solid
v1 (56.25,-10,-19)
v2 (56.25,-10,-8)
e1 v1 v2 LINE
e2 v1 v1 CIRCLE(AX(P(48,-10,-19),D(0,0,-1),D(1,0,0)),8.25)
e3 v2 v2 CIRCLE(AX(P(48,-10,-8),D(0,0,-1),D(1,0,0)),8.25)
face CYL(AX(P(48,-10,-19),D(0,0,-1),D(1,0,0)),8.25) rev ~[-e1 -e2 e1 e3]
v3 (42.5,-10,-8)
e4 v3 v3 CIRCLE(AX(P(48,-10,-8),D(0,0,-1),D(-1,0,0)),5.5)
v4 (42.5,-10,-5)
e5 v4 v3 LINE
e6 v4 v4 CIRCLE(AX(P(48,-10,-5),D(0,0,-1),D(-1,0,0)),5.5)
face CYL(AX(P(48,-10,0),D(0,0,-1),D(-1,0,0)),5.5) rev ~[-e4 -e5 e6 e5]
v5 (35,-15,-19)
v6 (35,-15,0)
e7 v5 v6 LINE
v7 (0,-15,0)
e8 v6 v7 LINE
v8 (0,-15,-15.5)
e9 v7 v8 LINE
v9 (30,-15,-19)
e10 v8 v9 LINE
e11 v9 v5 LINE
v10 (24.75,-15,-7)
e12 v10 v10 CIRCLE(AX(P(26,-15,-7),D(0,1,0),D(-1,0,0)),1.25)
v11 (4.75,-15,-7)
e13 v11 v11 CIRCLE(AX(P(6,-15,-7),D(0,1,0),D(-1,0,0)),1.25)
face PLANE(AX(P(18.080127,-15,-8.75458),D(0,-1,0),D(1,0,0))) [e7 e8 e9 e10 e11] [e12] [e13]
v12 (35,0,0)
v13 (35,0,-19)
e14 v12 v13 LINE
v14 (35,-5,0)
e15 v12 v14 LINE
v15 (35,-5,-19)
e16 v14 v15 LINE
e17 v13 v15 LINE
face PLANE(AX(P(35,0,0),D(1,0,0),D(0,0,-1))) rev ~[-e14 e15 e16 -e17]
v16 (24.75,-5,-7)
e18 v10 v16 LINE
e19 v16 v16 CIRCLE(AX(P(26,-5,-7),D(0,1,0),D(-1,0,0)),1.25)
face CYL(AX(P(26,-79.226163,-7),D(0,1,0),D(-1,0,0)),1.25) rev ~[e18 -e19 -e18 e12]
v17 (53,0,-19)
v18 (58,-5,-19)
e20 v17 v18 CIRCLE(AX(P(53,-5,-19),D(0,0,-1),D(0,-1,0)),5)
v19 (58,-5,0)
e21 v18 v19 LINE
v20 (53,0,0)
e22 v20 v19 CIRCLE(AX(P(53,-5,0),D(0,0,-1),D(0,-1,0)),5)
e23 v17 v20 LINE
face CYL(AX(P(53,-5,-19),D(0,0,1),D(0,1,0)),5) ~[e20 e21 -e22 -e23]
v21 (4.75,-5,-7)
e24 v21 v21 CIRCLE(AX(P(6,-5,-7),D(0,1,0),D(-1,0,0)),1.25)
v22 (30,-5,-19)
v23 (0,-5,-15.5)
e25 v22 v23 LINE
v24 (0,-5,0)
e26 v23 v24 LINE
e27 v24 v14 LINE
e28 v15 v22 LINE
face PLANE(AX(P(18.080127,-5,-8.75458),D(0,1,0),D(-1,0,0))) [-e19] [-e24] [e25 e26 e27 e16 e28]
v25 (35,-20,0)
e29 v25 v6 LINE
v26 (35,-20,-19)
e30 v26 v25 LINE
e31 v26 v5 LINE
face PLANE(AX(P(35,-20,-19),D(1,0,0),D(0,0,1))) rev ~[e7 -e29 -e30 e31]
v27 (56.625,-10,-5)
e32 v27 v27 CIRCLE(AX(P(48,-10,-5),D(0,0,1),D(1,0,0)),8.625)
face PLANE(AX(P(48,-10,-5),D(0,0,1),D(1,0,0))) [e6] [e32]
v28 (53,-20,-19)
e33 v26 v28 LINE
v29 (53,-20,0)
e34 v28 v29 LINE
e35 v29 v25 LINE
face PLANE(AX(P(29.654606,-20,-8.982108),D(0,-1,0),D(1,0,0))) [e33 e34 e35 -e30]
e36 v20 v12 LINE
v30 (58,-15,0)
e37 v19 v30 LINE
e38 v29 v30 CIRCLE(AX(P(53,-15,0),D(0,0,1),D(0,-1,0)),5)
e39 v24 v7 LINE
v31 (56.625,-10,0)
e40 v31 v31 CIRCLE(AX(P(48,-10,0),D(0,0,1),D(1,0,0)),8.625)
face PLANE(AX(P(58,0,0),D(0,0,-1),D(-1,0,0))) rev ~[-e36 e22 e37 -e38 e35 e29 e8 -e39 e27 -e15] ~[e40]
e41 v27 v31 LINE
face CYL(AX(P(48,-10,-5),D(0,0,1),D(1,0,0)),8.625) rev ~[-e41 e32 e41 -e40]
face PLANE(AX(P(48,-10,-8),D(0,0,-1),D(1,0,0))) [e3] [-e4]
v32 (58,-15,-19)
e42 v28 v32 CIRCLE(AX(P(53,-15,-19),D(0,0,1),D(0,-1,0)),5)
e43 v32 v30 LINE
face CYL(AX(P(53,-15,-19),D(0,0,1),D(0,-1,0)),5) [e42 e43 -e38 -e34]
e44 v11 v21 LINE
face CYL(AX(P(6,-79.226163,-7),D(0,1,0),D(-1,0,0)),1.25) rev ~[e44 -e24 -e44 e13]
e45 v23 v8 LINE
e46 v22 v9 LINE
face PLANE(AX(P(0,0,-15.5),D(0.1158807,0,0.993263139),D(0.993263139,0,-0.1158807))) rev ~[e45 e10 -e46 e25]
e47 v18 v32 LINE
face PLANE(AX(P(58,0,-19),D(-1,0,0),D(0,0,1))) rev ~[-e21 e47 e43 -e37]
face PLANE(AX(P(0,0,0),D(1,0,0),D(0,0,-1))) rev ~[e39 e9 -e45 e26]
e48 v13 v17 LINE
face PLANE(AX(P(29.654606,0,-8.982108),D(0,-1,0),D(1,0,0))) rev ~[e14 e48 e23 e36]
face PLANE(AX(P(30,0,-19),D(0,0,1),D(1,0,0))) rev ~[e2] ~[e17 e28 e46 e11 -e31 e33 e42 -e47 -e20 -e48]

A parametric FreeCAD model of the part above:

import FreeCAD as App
import Part
import Sketcher

V = App.Vector


def edges_at(feature, points):
    """Names of the edges that pass closest to the given points."""
    edges = feature.Shape.Edges
    near = lambda p: min(range(len(edges)), key=lambda i: edges[i].distToShape(Part.Vertex(*p))[0])
    return sorted({f"Edge{near(p) + 1}" for p in points})


def add_polygon(sketch, points):
    """Adds a closed chain of lines whose ends are joined by coincident constraints."""
    first, n = sketch.GeometryCount, len(points)
    for a, b in zip(points, points[1:] + points[:1]):
        sketch.addGeometry(Part.LineSegment(App.Vector(*a, 0), App.Vector(*b, 0)), False)
    for i in range(n):
        sketch.addConstraint(Sketcher.Constraint("Coincident", first + i, 2, first + (i + 1) % n, 1))

doc = App.newDocument("Part")
params = doc.addObject("Spreadsheet::Sheet", "Params")
for row, (alias, value) in enumerate([
    ("sketch1_width", "58 mm"),
    ("sketch1_width2", "28 mm"),
    ("sketch1_height", "19 mm"),
    ("sketch1_height2", "15.5 mm"),
    ("pad1_length", "20 mm"),
    ("sketch2_diameter", "11 mm"),
    ("hole_diameter", "11 mm"),
    ("hole_cbore_diameter", "17.25 mm"),
    ("hole_cbore_depth", "5 mm"),
    ("sketch3_diameter", "16.5 mm"),
    ("pocket1_length", "11 mm"),
    ("sketch4_width", "35 mm"),
    ("sketch4_width2", "5 mm"),
    ("sketch4_height", "19 mm"),
    ("sketch4_height2", "15.5 mm"),
    ("pocket2_length", "5 mm"),
    ("sketch5_width", "35 mm"),
    ("sketch5_width2", "5 mm"),
    ("sketch5_height", "19 mm"),
    ("sketch5_height2", "15.5 mm"),
    ("pocket3_length", "5 mm"),
    ("sketch6_diameter", "2.5 mm"),
    ("hole2_diameter", "2.5 mm"),
    ("fillet_radius", "5 mm"),
], start=1):
    params.set(f"A{row}", alias)
    params.set(f"B{row}", "=" + value)
    params.setAlias(f"B{row}", alias)

body = doc.addObject("PartDesign::Body", "Body")

sketch1 = doc.addObject("Sketcher::SketchObject", "Sketch")
body.addObject(sketch1)
sketch1.AttachmentSupport = (doc.XZ_Plane, [""])
sketch1.MapMode = "FlatFace"
add_polygon(sketch1, [(58, 0), (0, 0), (0, -15.5), (30, -19), (58, -19)])
sketch1.addConstraint([
    Sketcher.Constraint("Horizontal", 0),
    Sketcher.Constraint("Vertical", 1),
    Sketcher.Constraint("Horizontal", 3),
    Sketcher.Constraint("Vertical", 4),
    Sketcher.Constraint("Coincident", 0, 2, -1, 1),
    Sketcher.Constraint("DistanceX", 0, 2, 0, 1, 58.0),
    Sketcher.Constraint("DistanceX", 3, 1, 3, 2, 28.0),
    Sketcher.Constraint("DistanceY", 4, 1, 4, 2, 19.0),
    Sketcher.Constraint("DistanceY", 1, 2, 1, 1, 15.5),
])
sketch1.setExpression("Constraints[10]", "Params.sketch1_width")
sketch1.setExpression("Constraints[11]", "Params.sketch1_width2")
sketch1.setExpression("Constraints[12]", "Params.sketch1_height")
sketch1.setExpression("Constraints[13]", "Params.sketch1_height2")
pad1 = doc.addObject("PartDesign::Pad", "Pad")
body.addObject(pad1)
pad1.Profile = sketch1
pad1.setExpression("Length", "Params.pad1_length")

sketch2 = doc.addObject("Sketcher::SketchObject", "Sketch001")
body.addObject(sketch2)
sketch2.AttachmentSupport = (doc.XY_Plane, [""])
sketch2.MapMode = "FlatFace"
sketch2.addGeometry(Part.Circle(V(48, -10, 0), V(0, 0, 1), 5.5), False)
sketch2.addConstraint([
    Sketcher.Constraint("Diameter", 0, 11.0),
    Sketcher.Constraint("DistanceX", -1, 1, 0, 3, 48.0),
    Sketcher.Constraint("DistanceY", 0, 3, -1, 1, 10.0),
])
sketch2.setExpression("Constraints[0]", "Params.sketch2_diameter")
doc.recompute()
hole = doc.addObject("PartDesign::Hole", "Hole")
body.addObject(hole)
hole.Profile = sketch2
hole.ThreadType = "None"
hole.setExpression("Diameter", "Params.hole_diameter")
hole.DepthType = "ThroughAll"
hole.HoleCutType = "Counterbore"
hole.setExpression("HoleCutDiameter", "Params.hole_cbore_diameter")
hole.setExpression("HoleCutDepth", "Params.hole_cbore_depth")

sketch3 = doc.addObject("Sketcher::SketchObject", "Sketch002")
body.addObject(sketch3)
sketch3.AttachmentSupport = (doc.XY_Plane, [""])
sketch3.MapMode = "FlatFace"
sketch3.AttachmentOffset = App.Placement(V(0, 0, -19), App.Rotation())
sketch3.addGeometry(Part.Circle(V(48, -10, 0), V(0, 0, 1), 8.25), False)
sketch3.addConstraint([
    Sketcher.Constraint("Diameter", 0, 16.5),
    Sketcher.Constraint("DistanceX", -1, 1, 0, 3, 48.0),
    Sketcher.Constraint("DistanceY", 0, 3, -1, 1, 10.0),
])
sketch3.setExpression("Constraints[0]", "Params.sketch3_diameter")
pocket1 = doc.addObject("PartDesign::Pocket", "Pocket")
body.addObject(pocket1)
pocket1.Profile = sketch3
pocket1.setExpression("Length", "Params.pocket1_length")
pocket1.Reversed = True

sketch4 = doc.addObject("Sketcher::SketchObject", "Sketch003")
body.addObject(sketch4)
sketch4.AttachmentSupport = (doc.XZ_Plane, [""])
sketch4.MapMode = "FlatFace"
sketch4.AttachmentOffset = App.Placement(V(0, 0, 20), App.Rotation())
add_polygon(sketch4, [(35, -19), (35, 0), (0, 0), (0, -15.5), (30, -19)])
sketch4.addConstraint([
    Sketcher.Constraint("Vertical", 0),
    Sketcher.Constraint("Horizontal", 1),
    Sketcher.Constraint("Vertical", 2),
    Sketcher.Constraint("Horizontal", 4),
    Sketcher.Constraint("Coincident", 1, 2, -1, 1),
    Sketcher.Constraint("DistanceX", 1, 2, 1, 1, 35.0),
    Sketcher.Constraint("DistanceX", 4, 1, 4, 2, 5.0),
    Sketcher.Constraint("DistanceY", 0, 1, 0, 2, 19.0),
    Sketcher.Constraint("DistanceY", 2, 2, 2, 1, 15.5),
])
sketch4.setExpression("Constraints[10]", "Params.sketch4_width")
sketch4.setExpression("Constraints[11]", "Params.sketch4_width2")
sketch4.setExpression("Constraints[12]", "Params.sketch4_height")
sketch4.setExpression("Constraints[13]", "Params.sketch4_height2")
pocket2 = doc.addObject("PartDesign::Pocket", "Pocket001")
body.addObject(pocket2)
pocket2.Profile = sketch4
pocket2.setExpression("Length", "Params.pocket2_length")

sketch5 = doc.addObject("Sketcher::SketchObject", "Sketch004")
body.addObject(sketch5)
sketch5.AttachmentSupport = (doc.XZ_Plane, [""])
sketch5.MapMode = "FlatFace"
add_polygon(sketch5, [(0, 0), (35, 0), (35, -19), (30, -19), (0, -15.5)])
sketch5.addConstraint([
    Sketcher.Constraint("Horizontal", 0),
    Sketcher.Constraint("Vertical", 1),
    Sketcher.Constraint("Horizontal", 2),
    Sketcher.Constraint("Vertical", 4),
    Sketcher.Constraint("Coincident", 4, 2, -1, 1),
    Sketcher.Constraint("DistanceX", 0, 1, 0, 2, 35.0),
    Sketcher.Constraint("DistanceX", 2, 2, 2, 1, 5.0),
    Sketcher.Constraint("DistanceY", 1, 2, 1, 1, 19.0),
    Sketcher.Constraint("DistanceY", 4, 1, 4, 2, 15.5),
])
sketch5.setExpression("Constraints[10]", "Params.sketch5_width")
sketch5.setExpression("Constraints[11]", "Params.sketch5_width2")
sketch5.setExpression("Constraints[12]", "Params.sketch5_height")
sketch5.setExpression("Constraints[13]", "Params.sketch5_height2")
pocket3 = doc.addObject("PartDesign::Pocket", "Pocket002")
body.addObject(pocket3)
pocket3.Profile = sketch5
pocket3.setExpression("Length", "Params.pocket3_length")
pocket3.Reversed = True

sketch6 = doc.addObject("Sketcher::SketchObject", "Sketch005")
body.addObject(sketch6)
sketch6.AttachmentSupport = (doc.XZ_Plane, [""])
sketch6.MapMode = "FlatFace"
sketch6.AttachmentOffset = App.Placement(V(0, 0, 15), App.Rotation())
sketch6.addGeometry([
    Part.Circle(V(6, -7, 0), V(0, 0, 1), 1.25),
    Part.Circle(V(26, -7, 0), V(0, 0, 1), 1.25),
], False)
sketch6.addConstraint([
    Sketcher.Constraint("Equal", 0, 1),
    Sketcher.Constraint("Horizontal", 0, 3, 1, 3),
    Sketcher.Constraint("Diameter", 0, 2.5),
    Sketcher.Constraint("DistanceX", -1, 1, 0, 3, 6.0),
    Sketcher.Constraint("DistanceY", 0, 3, -1, 1, 7.0),
    Sketcher.Constraint("DistanceX", -1, 1, 1, 3, 26.0),
])
sketch6.setExpression("Constraints[2]", "Params.sketch6_diameter")
doc.recompute()
hole2 = doc.addObject("PartDesign::Hole", "Hole001")
body.addObject(hole2)
hole2.Profile = sketch6
hole2.ThreadType = "None"
hole2.setExpression("Diameter", "Params.hole2_diameter")
hole2.DepthType = "ThroughAll"
doc.recompute()

fillet = doc.addObject("PartDesign::Fillet", "Fillet")
body.addObject(fillet)
fillet.Base = (hole2, edges_at(hole2, [(58, -20, -9.5), (58, 0, -9.5)]))
fillet.setExpression("Radius", "Params.fillet_radius")

doc.recompute()
